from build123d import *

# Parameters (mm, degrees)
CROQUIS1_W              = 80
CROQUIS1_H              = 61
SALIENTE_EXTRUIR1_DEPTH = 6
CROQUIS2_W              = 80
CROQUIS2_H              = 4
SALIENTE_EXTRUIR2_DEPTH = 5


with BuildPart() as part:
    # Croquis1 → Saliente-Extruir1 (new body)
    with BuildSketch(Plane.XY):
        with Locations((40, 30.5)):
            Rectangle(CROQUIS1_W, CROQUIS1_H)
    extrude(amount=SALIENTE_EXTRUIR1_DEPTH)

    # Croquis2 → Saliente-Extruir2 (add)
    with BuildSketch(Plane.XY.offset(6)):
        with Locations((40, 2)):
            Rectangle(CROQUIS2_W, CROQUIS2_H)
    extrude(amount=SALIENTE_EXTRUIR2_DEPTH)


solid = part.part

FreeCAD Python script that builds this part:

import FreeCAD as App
import Part
import Sketcher
from FreeCAD import Vector


def add_polygon(sketch, points):
    """Adds a closed chain of lines whose ends are joined by coincident constraints."""
    first, n = sketch.GeometryCount, len(points)
    for a, b in zip(points, points[1:] + points[:1]):
        sketch.addGeometry(Part.LineSegment(App.Vector(*a, 0), App.Vector(*b, 0)), False)
    for i in range(n):
        sketch.addConstraint(Sketcher.Constraint("Coincident", first + i, 2, first + (i + 1) % n, 1))

doc = App.newDocument("Part")
body = doc.addObject("PartDesign::Body", "Body")

# Sketch on XY plane
sketch1 = body.newObject("Sketcher::SketchObject", "Sketch")
sketch1.AttachmentSupport = (doc.getObject("XY_Plane"), [""])
sketch1.MapMode = "FlatFace"
add_polygon(sketch1, [(0, 61), (0, 0), (80, 0), (80, 61)])  # lines 0-3
sketch1.addConstraint(Sketcher.Constraint("Vertical", 0))
sketch1.addConstraint(Sketcher.Constraint("Horizontal", 1))
sketch1.addConstraint(Sketcher.Constraint("Vertical", 2))
sketch1.addConstraint(Sketcher.Constraint("Horizontal", 3))
sketch1.addConstraint(Sketcher.Constraint("Coincident", 0, 2, -1, 1))
sketch1.addConstraint(Sketcher.Constraint("DistanceX", 1, 1, 1, 2, 80.0))
sketch1.addConstraint(Sketcher.Constraint("DistanceY", 0, 2, 0, 1, 61.0))
pad1 = body.newObject("PartDesign::Pad", "Pad")
pad1.Profile = sketch1
pad1.Length = 6

# Sketch on XY plane
sketch2 = body.newObject("Sketcher::SketchObject", "Sketch001")
sketch2.AttachmentSupport = (doc.getObject("XY_Plane"), [""])
sketch2.MapMode = "FlatFace"
sketch2.AttachmentOffset = App.Placement(Vector(0, 0, 6), App.Rotation())
add_polygon(sketch2, [(0, 4), (0, 0), (80, 0), (80, 4)])  # lines 0-3
sketch2.addConstraint(Sketcher.Constraint("Vertical", 0))
sketch2.addConstraint(Sketcher.Constraint("Horizontal", 1))
sketch2.addConstraint(Sketcher.Constraint("Vertical", 2))
sketch2.addConstraint(Sketcher.Constraint("Horizontal", 3))
sketch2.addConstraint(Sketcher.Constraint("Coincident", 0, 2, -1, 1))
sketch2.addConstraint(Sketcher.Constraint("DistanceX", 1, 1, 1, 2, 80.0))
sketch2.addConstraint(Sketcher.Constraint("DistanceY", 0, 2, 0, 1, 4.0))
pad2 = body.newObject("PartDesign::Pad", "Pad001")
pad2.Profile = sketch2
pad2.Length = 5

doc.recompute()
